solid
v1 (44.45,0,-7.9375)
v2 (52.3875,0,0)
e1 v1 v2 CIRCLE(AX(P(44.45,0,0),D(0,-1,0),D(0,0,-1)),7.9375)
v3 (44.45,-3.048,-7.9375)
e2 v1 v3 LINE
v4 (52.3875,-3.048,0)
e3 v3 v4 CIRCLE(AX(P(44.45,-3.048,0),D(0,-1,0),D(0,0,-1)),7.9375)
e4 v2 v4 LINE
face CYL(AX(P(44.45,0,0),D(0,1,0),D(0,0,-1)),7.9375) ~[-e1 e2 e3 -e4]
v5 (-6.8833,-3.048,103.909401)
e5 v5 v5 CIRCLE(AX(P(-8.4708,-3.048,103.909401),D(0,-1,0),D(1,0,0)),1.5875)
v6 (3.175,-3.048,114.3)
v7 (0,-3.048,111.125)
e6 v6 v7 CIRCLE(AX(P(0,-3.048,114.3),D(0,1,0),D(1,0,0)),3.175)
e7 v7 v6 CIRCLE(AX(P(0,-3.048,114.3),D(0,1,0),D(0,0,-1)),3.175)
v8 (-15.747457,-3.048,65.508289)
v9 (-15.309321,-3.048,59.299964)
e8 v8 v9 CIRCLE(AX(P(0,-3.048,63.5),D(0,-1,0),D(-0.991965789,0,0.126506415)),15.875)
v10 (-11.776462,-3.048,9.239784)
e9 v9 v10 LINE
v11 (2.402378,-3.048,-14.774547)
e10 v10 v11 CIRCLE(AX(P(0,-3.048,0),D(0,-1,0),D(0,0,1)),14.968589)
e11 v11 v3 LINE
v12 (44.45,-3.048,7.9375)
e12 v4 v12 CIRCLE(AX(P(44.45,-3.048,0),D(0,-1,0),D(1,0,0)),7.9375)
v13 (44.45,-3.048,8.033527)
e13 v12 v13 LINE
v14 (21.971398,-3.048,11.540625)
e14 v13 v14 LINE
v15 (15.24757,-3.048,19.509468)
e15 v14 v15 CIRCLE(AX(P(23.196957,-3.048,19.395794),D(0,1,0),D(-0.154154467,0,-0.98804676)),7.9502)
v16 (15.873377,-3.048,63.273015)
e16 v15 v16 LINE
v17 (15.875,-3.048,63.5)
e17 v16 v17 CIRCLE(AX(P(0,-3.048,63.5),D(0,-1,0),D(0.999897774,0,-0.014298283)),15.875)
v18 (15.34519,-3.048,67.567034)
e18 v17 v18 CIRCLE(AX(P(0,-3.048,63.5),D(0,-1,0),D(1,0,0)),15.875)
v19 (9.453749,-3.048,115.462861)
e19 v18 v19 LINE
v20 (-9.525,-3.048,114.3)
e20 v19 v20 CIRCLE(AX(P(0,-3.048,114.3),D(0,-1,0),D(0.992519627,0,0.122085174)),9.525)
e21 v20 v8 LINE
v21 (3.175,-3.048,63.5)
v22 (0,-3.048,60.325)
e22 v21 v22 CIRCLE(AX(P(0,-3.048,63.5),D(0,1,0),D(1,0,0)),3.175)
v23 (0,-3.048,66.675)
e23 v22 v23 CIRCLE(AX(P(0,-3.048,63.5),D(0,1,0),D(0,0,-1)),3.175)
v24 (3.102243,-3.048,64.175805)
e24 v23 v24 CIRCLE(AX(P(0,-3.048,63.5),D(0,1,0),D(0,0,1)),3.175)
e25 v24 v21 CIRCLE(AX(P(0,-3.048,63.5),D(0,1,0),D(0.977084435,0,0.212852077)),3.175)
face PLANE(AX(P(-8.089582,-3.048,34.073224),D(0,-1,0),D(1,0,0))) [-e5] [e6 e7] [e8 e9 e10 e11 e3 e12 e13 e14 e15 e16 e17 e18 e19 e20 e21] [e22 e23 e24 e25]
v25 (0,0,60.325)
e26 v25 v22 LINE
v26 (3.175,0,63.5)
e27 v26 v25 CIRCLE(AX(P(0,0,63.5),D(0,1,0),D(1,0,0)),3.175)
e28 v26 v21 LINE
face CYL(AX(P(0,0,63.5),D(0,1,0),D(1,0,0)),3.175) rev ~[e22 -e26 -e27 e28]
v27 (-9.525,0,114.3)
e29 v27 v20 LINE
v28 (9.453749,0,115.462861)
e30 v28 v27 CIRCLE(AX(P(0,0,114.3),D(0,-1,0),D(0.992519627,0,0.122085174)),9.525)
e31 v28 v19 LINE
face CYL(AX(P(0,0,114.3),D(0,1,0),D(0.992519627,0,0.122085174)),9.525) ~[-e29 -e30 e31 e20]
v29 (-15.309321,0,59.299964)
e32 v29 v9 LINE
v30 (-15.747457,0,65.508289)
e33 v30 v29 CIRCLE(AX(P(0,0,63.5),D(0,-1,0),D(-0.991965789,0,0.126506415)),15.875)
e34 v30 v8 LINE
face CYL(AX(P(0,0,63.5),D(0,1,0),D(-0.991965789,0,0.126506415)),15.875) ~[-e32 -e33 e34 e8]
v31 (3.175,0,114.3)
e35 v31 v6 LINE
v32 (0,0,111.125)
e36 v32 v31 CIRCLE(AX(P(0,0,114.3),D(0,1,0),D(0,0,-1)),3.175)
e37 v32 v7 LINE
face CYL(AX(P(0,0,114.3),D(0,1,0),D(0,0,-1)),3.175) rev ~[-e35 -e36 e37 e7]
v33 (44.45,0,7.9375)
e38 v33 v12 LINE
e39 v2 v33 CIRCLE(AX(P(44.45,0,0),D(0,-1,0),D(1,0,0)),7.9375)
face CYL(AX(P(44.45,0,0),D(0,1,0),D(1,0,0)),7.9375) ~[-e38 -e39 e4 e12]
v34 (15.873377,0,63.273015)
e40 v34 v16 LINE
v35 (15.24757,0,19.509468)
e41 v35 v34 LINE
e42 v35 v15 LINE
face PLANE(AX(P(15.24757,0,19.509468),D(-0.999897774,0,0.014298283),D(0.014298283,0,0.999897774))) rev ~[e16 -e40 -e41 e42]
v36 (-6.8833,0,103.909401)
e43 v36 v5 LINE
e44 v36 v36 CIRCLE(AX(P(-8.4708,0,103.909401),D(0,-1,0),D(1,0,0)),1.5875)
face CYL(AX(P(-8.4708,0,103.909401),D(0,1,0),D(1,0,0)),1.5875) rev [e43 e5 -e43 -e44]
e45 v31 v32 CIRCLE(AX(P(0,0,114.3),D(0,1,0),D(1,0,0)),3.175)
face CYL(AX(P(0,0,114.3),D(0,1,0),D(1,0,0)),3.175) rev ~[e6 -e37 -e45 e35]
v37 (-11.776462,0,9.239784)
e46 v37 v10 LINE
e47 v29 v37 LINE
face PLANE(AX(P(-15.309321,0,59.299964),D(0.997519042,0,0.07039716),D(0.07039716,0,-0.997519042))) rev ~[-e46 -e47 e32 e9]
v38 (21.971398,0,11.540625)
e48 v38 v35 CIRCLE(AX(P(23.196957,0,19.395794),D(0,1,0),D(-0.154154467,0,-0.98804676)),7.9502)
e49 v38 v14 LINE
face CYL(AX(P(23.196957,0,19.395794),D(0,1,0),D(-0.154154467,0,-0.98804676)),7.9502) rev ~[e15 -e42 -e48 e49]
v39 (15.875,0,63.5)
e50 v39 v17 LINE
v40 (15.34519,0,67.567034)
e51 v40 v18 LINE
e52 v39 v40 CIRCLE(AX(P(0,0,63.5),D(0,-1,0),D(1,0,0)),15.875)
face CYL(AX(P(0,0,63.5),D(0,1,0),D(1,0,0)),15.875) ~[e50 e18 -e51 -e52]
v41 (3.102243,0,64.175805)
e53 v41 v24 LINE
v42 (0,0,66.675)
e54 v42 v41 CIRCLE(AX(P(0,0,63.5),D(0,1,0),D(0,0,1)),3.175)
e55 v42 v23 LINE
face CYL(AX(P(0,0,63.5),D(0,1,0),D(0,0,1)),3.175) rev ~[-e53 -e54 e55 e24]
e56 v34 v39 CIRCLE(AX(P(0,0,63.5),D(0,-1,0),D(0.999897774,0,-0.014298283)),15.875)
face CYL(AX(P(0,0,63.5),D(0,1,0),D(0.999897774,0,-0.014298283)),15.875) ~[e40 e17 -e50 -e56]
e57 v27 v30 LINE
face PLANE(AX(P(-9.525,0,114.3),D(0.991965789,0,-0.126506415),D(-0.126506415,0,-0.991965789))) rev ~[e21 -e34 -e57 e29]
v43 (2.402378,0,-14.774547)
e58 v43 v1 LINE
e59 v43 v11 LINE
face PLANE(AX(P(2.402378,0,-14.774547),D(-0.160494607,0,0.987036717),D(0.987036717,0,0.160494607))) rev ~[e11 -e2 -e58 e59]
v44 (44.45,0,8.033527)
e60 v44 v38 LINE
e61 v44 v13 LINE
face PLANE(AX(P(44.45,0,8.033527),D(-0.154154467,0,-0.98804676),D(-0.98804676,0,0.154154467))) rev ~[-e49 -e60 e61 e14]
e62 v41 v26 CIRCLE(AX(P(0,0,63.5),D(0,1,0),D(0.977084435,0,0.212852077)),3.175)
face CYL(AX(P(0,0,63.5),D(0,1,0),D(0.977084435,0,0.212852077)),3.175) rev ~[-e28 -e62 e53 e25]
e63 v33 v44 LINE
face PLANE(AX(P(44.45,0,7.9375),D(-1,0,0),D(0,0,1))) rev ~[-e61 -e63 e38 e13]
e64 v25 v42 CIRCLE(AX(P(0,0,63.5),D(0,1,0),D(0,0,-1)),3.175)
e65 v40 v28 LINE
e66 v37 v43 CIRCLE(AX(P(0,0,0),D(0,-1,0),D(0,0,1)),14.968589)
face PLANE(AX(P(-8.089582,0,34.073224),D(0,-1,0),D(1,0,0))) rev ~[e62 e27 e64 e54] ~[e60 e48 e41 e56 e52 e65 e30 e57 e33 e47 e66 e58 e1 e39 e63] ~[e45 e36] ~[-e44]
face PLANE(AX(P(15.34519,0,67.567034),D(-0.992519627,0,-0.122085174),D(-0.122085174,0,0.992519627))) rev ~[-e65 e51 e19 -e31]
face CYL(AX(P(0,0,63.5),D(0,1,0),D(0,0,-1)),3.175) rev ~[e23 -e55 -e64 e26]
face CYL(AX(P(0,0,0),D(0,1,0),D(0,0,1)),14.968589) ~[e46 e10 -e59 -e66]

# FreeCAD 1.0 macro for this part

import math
import FreeCAD as App
import Part
import Sketcher
from FreeCAD import Vector
Q = App.Units.Quantity

doc = App.newDocument("Part")
params = doc.addObject("Spreadsheet::Sheet", "Params")
for row, (alias, value) in enumerate([
    ("sketch1_diameter", "0.125 in"),
    ("sketch1_radius", "0.3125 in"),
    ("sketch1_radius2", "0.313 in"),
    ("sketch1_radius3", "0.625 in"),
    ("sketch1_radius4", "0.375 in"),
    ("pad1_length", "0.12 in"),
], start=1):
    params.set(f"A{row}", alias)
    params.set(f"B{row}", "=" + value)
    params.setAlias(f"B{row}", alias)

body = doc.addObject("PartDesign::Body", "Body")

# Sketch on XZ plane
sketch1 = body.newObject("Sketcher::SketchObject", "Sketch")
sketch1.AttachmentSupport = (doc.getObject("XZ_Plane"), [""])
sketch1.MapMode = "FlatFace"
sketch1.addGeometry([
    Part.LineSegment(Vector(2.4, -14.77, 0), Vector(44.45, -7.94, 0)),  # 0
    Part.ArcOfCircle(Part.Circle(Vector(44.45, 0, 0), Vector(0, 0, 1), 7.94), math.radians(-90), math.radians(0)),  # 1
    Part.ArcOfCircle(Part.Circle(Vector(44.45, 0, 0), Vector(0, 0, 1), 7.94), math.radians(0), math.radians(90)),  # 2
    Part.LineSegment(Vector(44.45, 7.94, 0), Vector(44.45, 8.03, 0)),  # 3
    Part.LineSegment(Vector(44.45, 8.03, 0), Vector(21.97, 11.54, 0)),  # 4
    Part.ArcOfCircle(Part.Circle(Vector(23.2, 19.4, 0), Vector(0, 0, 1), 7.95), math.radians(179), math.radians(261)),  # 5
    Part.LineSegment(Vector(15.25, 19.51, 0), Vector(15.87, 63.27, 0)),  # 6
    Part.ArcOfCircle(Part.Circle(Vector(0, 63.5, 0), Vector(0, 0, 1), 15.87), math.radians(-0.82), math.radians(0)),  # 7
    Part.ArcOfCircle(Part.Circle(Vector(0, 63.5, 0), Vector(0, 0, 1), 15.88), math.radians(0), math.radians(14.84)),  # 8
    Part.LineSegment(Vector(15.35, 67.57, 0), Vector(9.45, 115.46, 0)),  # 9
    Part.ArcOfCircle(Part.Circle(Vector(0, 114.3, 0), Vector(0, 0, 1), 9.53), math.radians(7), math.radians(180)),  # 10
    Part.LineSegment(Vector(-9.53, 114.3, 0), Vector(-15.75, 65.51, 0)),  # 11
    Part.ArcOfCircle(Part.Circle(Vector(0, 63.5, 0), Vector(0, 0, 1), 15.87), math.radians(173), math.radians(195)),  # 12
    Part.LineSegment(Vector(-15.31, 59.3, 0), Vector(-11.78, 9.24, 0)),  # 13
    Part.ArcOfCircle(Part.Circle(Vector(0, 0, 0), Vector(0, 0, 1), 14.97), math.radians(142), math.radians(279)),  # 14
    Part.ArcOfCircle(Part.Circle(Vector(0, 63.5, 0), Vector(0, 0, 1), 3.17), math.radians(12), math.radians(90)),  # 15
    Part.ArcOfCircle(Part.Circle(Vector(0, 63.5, 0), Vector(0, 0, 1), 3.18), math.radians(0), math.radians(12.29)),  # 16
    Part.ArcOfCircle(Part.Circle(Vector(0, 63.5, 0), Vector(0, 0, 1), 3.17), math.radians(-90), math.radians(0)),  # 17
    Part.ArcOfCircle(Part.Circle(Vector(0, 63.5, 0), Vector(0, 0, 1), 3.17), math.radians(90), math.radians(270)),  # 18
    Part.Circle(Vector(-8.47, 103.91, 0), Vector(0, 0, 1), 1.59),  # 19
    Part.ArcOfCircle(Part.Circle(Vector(0, 114.3, 0), Vector(0, 0, 1), 3.17), math.radians(0), math.radians(270)),  # 20
    Part.ArcOfCircle(Part.Circle(Vector(0, 114.3, 0), Vector(0, 0, 1), 3.17), math.radians(-90), math.radians(0)),  # 21
], False)
sketch1.addConstraint([
    Sketcher.Constraint("Coincident", 0, 2, 1, 1),
    Sketcher.Constraint("Tangent", 1, 2, 2, 1),
    Sketcher.Constraint("Coincident", 2, 2, 3, 1),
    Sketcher.Constraint("Coincident", 3, 2, 4, 1),
    Sketcher.Constraint("Tangent", 4, 2, 5, 2),
    Sketcher.Constraint("Tangent", 5, 1, 6, 1),
    Sketcher.Constraint("Tangent", 6, 2, 7, 1),
    Sketcher.Constraint("Tangent", 7, 2, 8, 1),
    Sketcher.Constraint("Coincident", 8, 2, 9, 1),
    Sketcher.Constraint("Tangent", 9, 2, 10, 1),
    Sketcher.Constraint("Coincident", 10, 2, 11, 1),
    Sketcher.Constraint("Tangent", 11, 2, 12, 1),
    Sketcher.Constraint("Coincident", 12, 2, 13, 1),
    Sketcher.Constraint("Coincident", 13, 2, 14, 1),
    Sketcher.Constraint("Tangent", 14, 2, 0, 1),
    Sketcher.Constraint("Tangent", 15, 1, 16, 2),
    Sketcher.Constraint("Tangent", 16, 1, 17, 2),
    Sketcher.Constraint("Tangent", 17, 1, 18, 2),
    Sketcher.Constraint("Tangent", 18, 1, 15, 2),
    Sketcher.Constraint("Tangent", 20, 1, 21, 2),
    Sketcher.Constraint("Coincident", 21, 1, 20, 2),
    Sketcher.Constraint("Vertical", 3),
    Sketcher.Constraint("Coincident", 14, 3, -1, 1),
    Sketcher.Constraint("Coincident", 12, 3, 7, 3),
    Sketcher.Constraint("Coincident", 15, 3, 7, 3),
    Sketcher.Constraint("Coincident", 20, 3, 10, 3),
    Sketcher.Constraint("Equal", 1, 2),
    Sketcher.Constraint("Equal", 7, 8),
    Sketcher.Constraint("Equal", 8, 12),
    Sketcher.Constraint("Equal", 15, 16),
    Sketcher.Constraint("Equal", 18, 20),
    Sketcher.Constraint("Symmetric", 0, 2, 2, 2, -1),
    Sketcher.Constraint("PointOnObject", 7, 3, -2),
    Sketcher.Constraint("PointOnObject", 10, 3, -2),
    Sketcher.Constraint("PointOnObject", 1, 2, -1),
    Sketcher.Constraint("PointOnObject", 17, 1, -2),
    Sketcher.Constraint("PointOnObject", 18, 1, -2),
    Sketcher.Constraint("PointOnObject", 21, 1, -2),
    Sketcher.Constraint("Horizontal", 18, 3, 7, 2),
    Sketcher.Constraint("Horizontal", 21, 3, 10, 2),
    Sketcher.Constraint("Horizontal", 7, 2, 16, 1),
    Sketcher.Constraint("Horizontal", 10, 2, 20, 1),
    Sketcher.Constraint("Vertical", 2, 3, 0, 2),
    Sketcher.Constraint("Diameter", 19, Q("0.125 in")),
    Sketcher.Constraint("Radius", 1, Q("0.3125 in")),
    Sketcher.Constraint("Radius", 5, Q("0.313 in")),
    Sketcher.Constraint("Radius", 7, Q("0.625 in")),
    Sketcher.Constraint("Radius", 10, Q("0.375 in")),
    Sketcher.Constraint("Radius", 15, Q("0.125 in")),
    Sketcher.Constraint("DistanceY", 8, 3, 10, 3, Q("2 in")),
    Sketcher.Constraint("DistanceY", -1, 1, 7, 3, Q("2.5 in")),
    Sketcher.Constraint("DistanceX", -1, 1, 1, 3, Q("1.75 in")),
    Sketcher.Constraint("Radius", 14, 14.968589),
    Sketcher.Constraint("DistanceX", 19, 3, -1, 1, 8.4708),
    Sketcher.Constraint("DistanceY", -1, 1, 19, 3, 103.909401),
    Sketcher.Constraint("DistanceX", -1, 1, 4, 2, 21.971398),
    Sketcher.Constraint("DistanceY", 3, 2, 4, 2, 3.507098),
    Sketcher.Constraint("Distance", 6, 43.768021),
    Sketcher.Constraint("DistanceX", -1, 1, 8, 2, 15.34519),
    Sketcher.Constraint("DistanceX", 12, 2, -1, 1, 15.309321),
    Sketcher.Constraint("DistanceX", 13, 2, 5, 1, 27.024032),
    Sketcher.Constraint("DistanceX", -1, 1, 15, 1, 3.102243),
])
sketch1.setExpression("Constraints[43]", "Params.sketch1_diameter")
sketch1.setExpression("Constraints[44]", "Params.sketch1_radius")
sketch1.setExpression("Constraints[45]", "Params.sketch1_radius2")
sketch1.setExpression("Constraints[46]", "Params.sketch1_radius3")
sketch1.setExpression("Constraints[47]", "Params.sketch1_radius4")
pad1 = body.newObject("PartDesign::Pad", "Pad")
pad1.Profile = sketch1
pad1.setExpression("Length", "Params.pad1_length")

doc.recompute()
